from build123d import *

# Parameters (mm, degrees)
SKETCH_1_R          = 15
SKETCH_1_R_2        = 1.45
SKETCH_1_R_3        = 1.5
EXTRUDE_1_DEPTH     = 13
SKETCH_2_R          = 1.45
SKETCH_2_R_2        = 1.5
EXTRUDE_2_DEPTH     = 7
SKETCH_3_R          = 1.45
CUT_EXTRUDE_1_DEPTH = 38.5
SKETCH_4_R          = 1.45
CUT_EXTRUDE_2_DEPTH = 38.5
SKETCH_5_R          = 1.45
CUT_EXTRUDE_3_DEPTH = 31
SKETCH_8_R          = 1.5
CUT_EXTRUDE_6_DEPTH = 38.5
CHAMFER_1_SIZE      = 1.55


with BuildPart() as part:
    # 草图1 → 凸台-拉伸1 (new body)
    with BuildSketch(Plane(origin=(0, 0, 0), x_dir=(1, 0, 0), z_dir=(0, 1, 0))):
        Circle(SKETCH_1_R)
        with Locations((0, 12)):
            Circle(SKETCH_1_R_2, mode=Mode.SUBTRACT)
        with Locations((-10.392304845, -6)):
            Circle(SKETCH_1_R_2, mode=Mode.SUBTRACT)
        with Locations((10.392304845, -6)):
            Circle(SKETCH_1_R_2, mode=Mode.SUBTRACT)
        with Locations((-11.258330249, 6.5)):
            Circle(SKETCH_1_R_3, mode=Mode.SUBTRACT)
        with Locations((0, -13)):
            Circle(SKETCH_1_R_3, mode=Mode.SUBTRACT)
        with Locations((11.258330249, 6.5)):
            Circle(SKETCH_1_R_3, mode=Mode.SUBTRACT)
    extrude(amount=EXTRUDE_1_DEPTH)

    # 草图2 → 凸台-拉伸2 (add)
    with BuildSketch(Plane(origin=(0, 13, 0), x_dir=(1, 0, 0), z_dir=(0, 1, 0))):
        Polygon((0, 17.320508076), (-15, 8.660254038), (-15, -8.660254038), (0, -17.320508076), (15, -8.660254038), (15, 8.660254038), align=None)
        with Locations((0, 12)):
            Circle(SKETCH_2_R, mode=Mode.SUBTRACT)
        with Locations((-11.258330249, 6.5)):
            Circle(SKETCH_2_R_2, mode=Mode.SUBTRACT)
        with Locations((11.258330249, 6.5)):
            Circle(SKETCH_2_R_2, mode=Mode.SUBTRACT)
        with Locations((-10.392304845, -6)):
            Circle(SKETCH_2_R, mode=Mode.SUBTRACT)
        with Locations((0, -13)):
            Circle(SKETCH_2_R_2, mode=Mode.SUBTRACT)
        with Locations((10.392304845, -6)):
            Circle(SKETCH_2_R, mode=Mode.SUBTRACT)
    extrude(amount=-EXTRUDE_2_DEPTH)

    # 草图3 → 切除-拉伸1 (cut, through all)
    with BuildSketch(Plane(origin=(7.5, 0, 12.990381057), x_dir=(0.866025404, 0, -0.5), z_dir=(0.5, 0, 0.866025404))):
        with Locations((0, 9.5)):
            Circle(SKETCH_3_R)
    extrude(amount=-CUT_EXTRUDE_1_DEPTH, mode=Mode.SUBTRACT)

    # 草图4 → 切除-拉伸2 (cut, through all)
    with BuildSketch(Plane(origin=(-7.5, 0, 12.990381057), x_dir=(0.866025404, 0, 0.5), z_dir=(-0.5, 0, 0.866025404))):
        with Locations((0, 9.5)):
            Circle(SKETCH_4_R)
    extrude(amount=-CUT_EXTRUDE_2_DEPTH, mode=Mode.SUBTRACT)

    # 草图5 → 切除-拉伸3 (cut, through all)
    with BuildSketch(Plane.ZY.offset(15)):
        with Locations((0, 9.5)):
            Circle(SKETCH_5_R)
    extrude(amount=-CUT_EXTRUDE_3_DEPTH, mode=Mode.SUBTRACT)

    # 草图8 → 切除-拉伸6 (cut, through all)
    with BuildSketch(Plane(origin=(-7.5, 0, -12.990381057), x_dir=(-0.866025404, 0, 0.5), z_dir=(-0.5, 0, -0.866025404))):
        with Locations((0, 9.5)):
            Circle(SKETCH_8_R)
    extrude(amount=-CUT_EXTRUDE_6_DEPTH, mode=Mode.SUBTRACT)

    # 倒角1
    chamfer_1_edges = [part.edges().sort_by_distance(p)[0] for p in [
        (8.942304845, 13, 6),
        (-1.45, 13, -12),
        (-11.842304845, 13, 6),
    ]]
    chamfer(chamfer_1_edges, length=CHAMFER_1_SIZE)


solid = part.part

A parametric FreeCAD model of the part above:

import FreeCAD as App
import Part
import Sketcher
from FreeCAD import Vector
Q = App.Units.Quantity


def edges_at(feature, points):
    """Names of the edges that pass closest to the given points."""
    edges = feature.Shape.Edges
    near = lambda p: min(range(len(edges)), key=lambda i: edges[i].distToShape(Part.Vertex(*p))[0])
    return sorted({f"Edge{near(p) + 1}" for p in points})

doc = App.newDocument("Part")
body = doc.addObject("PartDesign::Body", "Body")

sketch1 = body.newObject("Sketcher::SketchObject", "Sketch")
sketch1.AttachmentSupport = (doc.getObject("XZ_Plane"), [""])
sketch1.MapMode = "FlatFace"
sketch1.addGeometry(Part.Circle(Vector(0, 0, 0), Vector(0, 0, 1), 15), False)
sketch1.addGeometry(Part.Circle(Vector(-10.4, 6, 0), Vector(0, 0, 1), 1.4), False)
sketch1.addGeometry(Part.Circle(Vector(0, 13, 0), Vector(0, 0, 1), 1.5), False)
sketch1.addGeometry(Part.Circle(Vector(10.4, 6, 0), Vector(0, 0, 1), 1.4), False)
sketch1.addGeometry(Part.Circle(Vector(-11.3, -6.5, 0), Vector(0, 0, 1), 1.5), False)
sketch1.addGeometry(Part.Circle(Vector(0, -12, 0), Vector(0, 0, 1), 1.4), False)
sketch1.addGeometry(Part.Circle(Vector(11.3, -6.5, 0), Vector(0, 0, 1), 1.5), False)
sketch1.addConstraint(Sketcher.Constraint("Coincident", 0, 3, -1, 1))
sketch1.addConstraint(Sketcher.Constraint("Equal", 1, 3))
sketch1.addConstraint(Sketcher.Constraint("Equal", 2, 4))
sketch1.addConstraint(Sketcher.Constraint("Equal", 3, 5))
sketch1.addConstraint(Sketcher.Constraint("Equal", 4, 6))
sketch1.addConstraint(Sketcher.Constraint("Symmetric", 1, 3, 3, 3, -2))
sketch1.addConstraint(Sketcher.Constraint("Symmetric", 4, 3, 6, 3, -2))
sketch1.addConstraint(Sketcher.Constraint("PointOnObject", 2, 3, -2))
sketch1.addConstraint(Sketcher.Constraint("PointOnObject", 5, 3, -2))
sketch1.addConstraint(Sketcher.Constraint("Diameter", 0, 30.0))
sketch1.addConstraint(Sketcher.Constraint("Diameter", 2, 3.0))
sketch1.addConstraint(Sketcher.Constraint("Diameter", 1, 2.9))
sketch1.addConstraint(Sketcher.Constraint("DistanceY", -1, 1, 1, 3, 6.0))
sketch1.addConstraint(Sketcher.Constraint("DistanceY", -1, 1, 2, 3, 13.0))
sketch1.addConstraint(Sketcher.Constraint("DistanceY", 5, 3, -1, 1, 12.0))
sketch1.addConstraint(Sketcher.Constraint("DistanceY", 4, 3, -1, 1, 6.5))
sketch1.addConstraint(Sketcher.Constraint("DistanceX", 4, 3, -1, 1, 11.25833))
sketch1.addConstraint(Sketcher.Constraint("DistanceX", 1, 3, 3, 3, 20.78461))
pad1 = body.newObject("PartDesign::Pad", "Pad")
pad1.Profile = sketch1
pad1.Length = 13
pad1.Reversed = True

sketch2 = body.newObject("Sketcher::SketchObject", "Sketch001")
sketch2.AttachmentSupport = (doc.getObject("XZ_Plane"), [""])
sketch2.MapMode = "FlatFace"
sketch2.AttachmentOffset = App.Placement(Vector(0, 0, -13), App.Rotation())
sketch2.addGeometry(Part.LineSegment(Vector(0, -17.3, 0), Vector(-15, -8.7, 0)), False)
sketch2.addGeometry(Part.LineSegment(Vector(-15, -8.7, 0), Vector(-15, 8.7, 0)), False)
sketch2.addGeometry(Part.LineSegment(Vector(-15, 8.7, 0), Vector(0, 17.3, 0)), False)
sketch2.addGeometry(Part.LineSegment(Vector(0, 17.3, 0), Vector(15, 8.7, 0)), False)
sketch2.addGeometry(Part.LineSegment(Vector(15, 8.7, 0), Vector(15, -8.7, 0)), False)
sketch2.addGeometry(Part.LineSegment(Vector(15, -8.7, 0), Vector(0, -17.3, 0)), False)
sketch2.addGeometry(Part.Circle(Vector(-10.4, 6, 0), Vector(0, 0, 1), 1.4), False)
sketch2.addGeometry(Part.Circle(Vector(0, 13, 0), Vector(0, 0, 1), 1.5), False)
sketch2.addGeometry(Part.Circle(Vector(10.4, 6, 0), Vector(0, 0, 1), 1.4), False)
sketch2.addGeometry(Part.Circle(Vector(-11.3, -6.5, 0), Vector(0, 0, 1), 1.5), False)
sketch2.addGeometry(Part.Circle(Vector(0, -12, 0), Vector(0, 0, 1), 1.4), False)
sketch2.addGeometry(Part.Circle(Vector(11.3, -6.5, 0), Vector(0, 0, 1), 1.5), False)
sketch2.addConstraint(Sketcher.Constraint("Coincident", 0, 2, 1, 1))
sketch2.addConstraint(Sketcher.Constraint("Coincident", 1, 2, 2, 1))
sketch2.addConstraint(Sketcher.Constraint("Coincident", 2, 2, 3, 1))
sketch2.addConstraint(Sketcher.Constraint("Coincident", 3, 2, 4, 1))
sketch2.addConstraint(Sketcher.Constraint("Coincident", 4, 2, 5, 1))
sketch2.addConstraint(Sketcher.Constraint("Coincident", 5, 2, 0, 1))
sketch2.addConstraint(Sketcher.Constraint("Vertical", 1))
sketch2.addConstraint(Sketcher.Constraint("Vertical", 4))
sketch2.addConstraint(Sketcher.Constraint("Equal", 6, 8))
sketch2.addConstraint(Sketcher.Constraint("Equal", 7, 9))
sketch2.addConstraint(Sketcher.Constraint("Equal", 8, 10))
sketch2.addConstraint(Sketcher.Constraint("Equal", 9, 11))
sketch2.addConstraint(Sketcher.Constraint("Symmetric", 0, 2, 3, 2, -1, 1))
sketch2.addConstraint(Sketcher.Constraint("Symmetric", 2, 2, 5, 2, -1, 1))
sketch2.addConstraint(Sketcher.Constraint("Symmetric", 6, 3, 8, 3, -2))
sketch2.addConstraint(Sketcher.Constraint("Symmetric", 9, 3, 11, 3, -2))
sketch2.addConstraint(Sketcher.Constraint("PointOnObject", 7, 3, -2))
sketch2.addConstraint(Sketcher.Constraint("PointOnObject", 10, 3, -2))
sketch2.addConstraint(Sketcher.Constraint("PointOnObject", 2, 2, -2))
sketch2.addConstraint(Sketcher.Constraint("Parallel", 2, 5))
sketch2.addConstraint(Sketcher.Constraint("Horizontal", 1, 2, 3, 2))
sketch2.addConstraint(Sketcher.Constraint("Diameter", 7, 3.0))
sketch2.addConstraint(Sketcher.Constraint("Diameter", 6, 2.9))
sketch2.addConstraint(Sketcher.Constraint("Angle", 0, Q("150 deg")))
sketch2.addConstraint(Sketcher.Constraint("DistanceY", -1, 1, 6, 3, 6.0))
sketch2.addConstraint(Sketcher.Constraint("DistanceY", -1, 1, 7, 3, 13.0))
sketch2.addConstraint(Sketcher.Constraint("DistanceY", 10, 3, -1, 1, 12.0))
sketch2.addConstraint(Sketcher.Constraint("DistanceX", 0, 2, -1, 1, 15.0))
sketch2.addConstraint(Sketcher.Constraint("DistanceY", 9, 3, -1, 1, 6.5))
sketch2.addConstraint(Sketcher.Constraint("DistanceY", 1, 1, 1, 2, 17.320508))
sketch2.addConstraint(Sketcher.Constraint("DistanceX", 9, 3, -1, 1, 11.25833))
sketch2.addConstraint(Sketcher.Constraint("DistanceX", 6, 3, 8, 3, 20.78461))
pad2 = body.newObject("PartDesign::Pad", "Pad001")
pad2.Profile = sketch2
pad2.Length = 7

sketch3 = body.newObject("Sketcher::SketchObject", "Sketch002")
sketch3.Placement = App.Placement(Vector(7.5, 0, 12.990381), App.Rotation(Vector(0.866025404, 0, -0.5), Vector(0, 1, 0), Vector(0.5, 0, 0.866025404), "ZXY"))
sketch3.addGeometry(Part.Circle(Vector(0, 9.5, 0), Vector(0, 0, 1), 1.4), False)
sketch3.addConstraint(Sketcher.Constraint("PointOnObject", 0, 3, -2))
sketch3.addConstraint(Sketcher.Constraint("Diameter", 0, 2.9))
sketch3.addConstraint(Sketcher.Constraint("DistanceY", -1, 1, 0, 3, 9.5))
pocket1 = body.newObject("PartDesign::Pocket", "Pocket")
pocket1.Profile = sketch3
pocket1.Type = "ThroughAll"

sketch4 = body.newObject("Sketcher::SketchObject", "Sketch003")
sketch4.Placement = App.Placement(Vector(-7.5, 0, 12.990381), App.Rotation(Vector(0.866025404, 0, 0.5), Vector(0, 1, 0), Vector(-0.5, 0, 0.866025404), "ZXY"))
sketch4.addGeometry(Part.Circle(Vector(0, 9.5, 0), Vector(0, 0, 1), 1.4), False)
sketch4.addConstraint(Sketcher.Constraint("PointOnObject", 0, 3, -2))
sketch4.addConstraint(Sketcher.Constraint("Diameter", 0, 2.9))
sketch4.addConstraint(Sketcher.Constraint("DistanceY", -1, 1, 0, 3, 9.5))
pocket2 = body.newObject("PartDesign::Pocket", "Pocket001")
pocket2.Profile = sketch4
pocket2.Type = "ThroughAll"

sketch5 = body.newObject("Sketcher::SketchObject", "Sketch004")
sketch5.AttachmentSupport = (doc.getObject("YZ_Plane"), [""])
sketch5.MapMode = "FlatFace"
sketch5.AttachmentOffset = App.Placement(Vector(0, 0, -15), App.Rotation())
sketch5.addGeometry(Part.Circle(Vector(9.5, 0, 0), Vector(0, 0, 1), 1.4), False)
sketch5.addConstraint(Sketcher.Constraint("PointOnObject", 0, 3, -1))
sketch5.addConstraint(Sketcher.Constraint("Diameter", 0, 2.9))
sketch5.addConstraint(Sketcher.Constraint("DistanceX", -1, 1, 0, 3, 9.5))
pocket3 = body.newObject("PartDesign::Pocket", "Pocket002")
pocket3.Profile = sketch5
pocket3.Type = "ThroughAll"
pocket3.Reversed = True

sketch6 = body.newObject("Sketcher::SketchObject", "Sketch005")
sketch6.Placement = App.Placement(Vector(-7.5, 0, -12.990381), App.Rotation(Vector(-0.866025404, 0, 0.5), Vector(0, 1, 0), Vector(-0.5, 0, -0.866025404), "ZXY"))
sketch6.addGeometry(Part.Circle(Vector(0, 9.5, 0), Vector(0, 0, 1), 1.5), False)
sketch6.addConstraint(Sketcher.Constraint("PointOnObject", 0, 3, -2))
sketch6.addConstraint(Sketcher.Constraint("Diameter", 0, 3.0))
sketch6.addConstraint(Sketcher.Constraint("DistanceY", -1, 1, 0, 3, 9.5))
pocket4 = body.newObject("PartDesign::Pocket", "Pocket003")
pocket4.Profile = sketch6
pocket4.Type = "ThroughAll"
doc.recompute()

chamfer = body.newObject("PartDesign::Chamfer", "Chamfer")
chamfer.Base = (pocket4, edges_at(pocket4, [(8.942, 13, 6), (-1.45, 13, -12), (-11.842, 13, 6)]))
chamfer.Size = 1.55

doc.recompute()
